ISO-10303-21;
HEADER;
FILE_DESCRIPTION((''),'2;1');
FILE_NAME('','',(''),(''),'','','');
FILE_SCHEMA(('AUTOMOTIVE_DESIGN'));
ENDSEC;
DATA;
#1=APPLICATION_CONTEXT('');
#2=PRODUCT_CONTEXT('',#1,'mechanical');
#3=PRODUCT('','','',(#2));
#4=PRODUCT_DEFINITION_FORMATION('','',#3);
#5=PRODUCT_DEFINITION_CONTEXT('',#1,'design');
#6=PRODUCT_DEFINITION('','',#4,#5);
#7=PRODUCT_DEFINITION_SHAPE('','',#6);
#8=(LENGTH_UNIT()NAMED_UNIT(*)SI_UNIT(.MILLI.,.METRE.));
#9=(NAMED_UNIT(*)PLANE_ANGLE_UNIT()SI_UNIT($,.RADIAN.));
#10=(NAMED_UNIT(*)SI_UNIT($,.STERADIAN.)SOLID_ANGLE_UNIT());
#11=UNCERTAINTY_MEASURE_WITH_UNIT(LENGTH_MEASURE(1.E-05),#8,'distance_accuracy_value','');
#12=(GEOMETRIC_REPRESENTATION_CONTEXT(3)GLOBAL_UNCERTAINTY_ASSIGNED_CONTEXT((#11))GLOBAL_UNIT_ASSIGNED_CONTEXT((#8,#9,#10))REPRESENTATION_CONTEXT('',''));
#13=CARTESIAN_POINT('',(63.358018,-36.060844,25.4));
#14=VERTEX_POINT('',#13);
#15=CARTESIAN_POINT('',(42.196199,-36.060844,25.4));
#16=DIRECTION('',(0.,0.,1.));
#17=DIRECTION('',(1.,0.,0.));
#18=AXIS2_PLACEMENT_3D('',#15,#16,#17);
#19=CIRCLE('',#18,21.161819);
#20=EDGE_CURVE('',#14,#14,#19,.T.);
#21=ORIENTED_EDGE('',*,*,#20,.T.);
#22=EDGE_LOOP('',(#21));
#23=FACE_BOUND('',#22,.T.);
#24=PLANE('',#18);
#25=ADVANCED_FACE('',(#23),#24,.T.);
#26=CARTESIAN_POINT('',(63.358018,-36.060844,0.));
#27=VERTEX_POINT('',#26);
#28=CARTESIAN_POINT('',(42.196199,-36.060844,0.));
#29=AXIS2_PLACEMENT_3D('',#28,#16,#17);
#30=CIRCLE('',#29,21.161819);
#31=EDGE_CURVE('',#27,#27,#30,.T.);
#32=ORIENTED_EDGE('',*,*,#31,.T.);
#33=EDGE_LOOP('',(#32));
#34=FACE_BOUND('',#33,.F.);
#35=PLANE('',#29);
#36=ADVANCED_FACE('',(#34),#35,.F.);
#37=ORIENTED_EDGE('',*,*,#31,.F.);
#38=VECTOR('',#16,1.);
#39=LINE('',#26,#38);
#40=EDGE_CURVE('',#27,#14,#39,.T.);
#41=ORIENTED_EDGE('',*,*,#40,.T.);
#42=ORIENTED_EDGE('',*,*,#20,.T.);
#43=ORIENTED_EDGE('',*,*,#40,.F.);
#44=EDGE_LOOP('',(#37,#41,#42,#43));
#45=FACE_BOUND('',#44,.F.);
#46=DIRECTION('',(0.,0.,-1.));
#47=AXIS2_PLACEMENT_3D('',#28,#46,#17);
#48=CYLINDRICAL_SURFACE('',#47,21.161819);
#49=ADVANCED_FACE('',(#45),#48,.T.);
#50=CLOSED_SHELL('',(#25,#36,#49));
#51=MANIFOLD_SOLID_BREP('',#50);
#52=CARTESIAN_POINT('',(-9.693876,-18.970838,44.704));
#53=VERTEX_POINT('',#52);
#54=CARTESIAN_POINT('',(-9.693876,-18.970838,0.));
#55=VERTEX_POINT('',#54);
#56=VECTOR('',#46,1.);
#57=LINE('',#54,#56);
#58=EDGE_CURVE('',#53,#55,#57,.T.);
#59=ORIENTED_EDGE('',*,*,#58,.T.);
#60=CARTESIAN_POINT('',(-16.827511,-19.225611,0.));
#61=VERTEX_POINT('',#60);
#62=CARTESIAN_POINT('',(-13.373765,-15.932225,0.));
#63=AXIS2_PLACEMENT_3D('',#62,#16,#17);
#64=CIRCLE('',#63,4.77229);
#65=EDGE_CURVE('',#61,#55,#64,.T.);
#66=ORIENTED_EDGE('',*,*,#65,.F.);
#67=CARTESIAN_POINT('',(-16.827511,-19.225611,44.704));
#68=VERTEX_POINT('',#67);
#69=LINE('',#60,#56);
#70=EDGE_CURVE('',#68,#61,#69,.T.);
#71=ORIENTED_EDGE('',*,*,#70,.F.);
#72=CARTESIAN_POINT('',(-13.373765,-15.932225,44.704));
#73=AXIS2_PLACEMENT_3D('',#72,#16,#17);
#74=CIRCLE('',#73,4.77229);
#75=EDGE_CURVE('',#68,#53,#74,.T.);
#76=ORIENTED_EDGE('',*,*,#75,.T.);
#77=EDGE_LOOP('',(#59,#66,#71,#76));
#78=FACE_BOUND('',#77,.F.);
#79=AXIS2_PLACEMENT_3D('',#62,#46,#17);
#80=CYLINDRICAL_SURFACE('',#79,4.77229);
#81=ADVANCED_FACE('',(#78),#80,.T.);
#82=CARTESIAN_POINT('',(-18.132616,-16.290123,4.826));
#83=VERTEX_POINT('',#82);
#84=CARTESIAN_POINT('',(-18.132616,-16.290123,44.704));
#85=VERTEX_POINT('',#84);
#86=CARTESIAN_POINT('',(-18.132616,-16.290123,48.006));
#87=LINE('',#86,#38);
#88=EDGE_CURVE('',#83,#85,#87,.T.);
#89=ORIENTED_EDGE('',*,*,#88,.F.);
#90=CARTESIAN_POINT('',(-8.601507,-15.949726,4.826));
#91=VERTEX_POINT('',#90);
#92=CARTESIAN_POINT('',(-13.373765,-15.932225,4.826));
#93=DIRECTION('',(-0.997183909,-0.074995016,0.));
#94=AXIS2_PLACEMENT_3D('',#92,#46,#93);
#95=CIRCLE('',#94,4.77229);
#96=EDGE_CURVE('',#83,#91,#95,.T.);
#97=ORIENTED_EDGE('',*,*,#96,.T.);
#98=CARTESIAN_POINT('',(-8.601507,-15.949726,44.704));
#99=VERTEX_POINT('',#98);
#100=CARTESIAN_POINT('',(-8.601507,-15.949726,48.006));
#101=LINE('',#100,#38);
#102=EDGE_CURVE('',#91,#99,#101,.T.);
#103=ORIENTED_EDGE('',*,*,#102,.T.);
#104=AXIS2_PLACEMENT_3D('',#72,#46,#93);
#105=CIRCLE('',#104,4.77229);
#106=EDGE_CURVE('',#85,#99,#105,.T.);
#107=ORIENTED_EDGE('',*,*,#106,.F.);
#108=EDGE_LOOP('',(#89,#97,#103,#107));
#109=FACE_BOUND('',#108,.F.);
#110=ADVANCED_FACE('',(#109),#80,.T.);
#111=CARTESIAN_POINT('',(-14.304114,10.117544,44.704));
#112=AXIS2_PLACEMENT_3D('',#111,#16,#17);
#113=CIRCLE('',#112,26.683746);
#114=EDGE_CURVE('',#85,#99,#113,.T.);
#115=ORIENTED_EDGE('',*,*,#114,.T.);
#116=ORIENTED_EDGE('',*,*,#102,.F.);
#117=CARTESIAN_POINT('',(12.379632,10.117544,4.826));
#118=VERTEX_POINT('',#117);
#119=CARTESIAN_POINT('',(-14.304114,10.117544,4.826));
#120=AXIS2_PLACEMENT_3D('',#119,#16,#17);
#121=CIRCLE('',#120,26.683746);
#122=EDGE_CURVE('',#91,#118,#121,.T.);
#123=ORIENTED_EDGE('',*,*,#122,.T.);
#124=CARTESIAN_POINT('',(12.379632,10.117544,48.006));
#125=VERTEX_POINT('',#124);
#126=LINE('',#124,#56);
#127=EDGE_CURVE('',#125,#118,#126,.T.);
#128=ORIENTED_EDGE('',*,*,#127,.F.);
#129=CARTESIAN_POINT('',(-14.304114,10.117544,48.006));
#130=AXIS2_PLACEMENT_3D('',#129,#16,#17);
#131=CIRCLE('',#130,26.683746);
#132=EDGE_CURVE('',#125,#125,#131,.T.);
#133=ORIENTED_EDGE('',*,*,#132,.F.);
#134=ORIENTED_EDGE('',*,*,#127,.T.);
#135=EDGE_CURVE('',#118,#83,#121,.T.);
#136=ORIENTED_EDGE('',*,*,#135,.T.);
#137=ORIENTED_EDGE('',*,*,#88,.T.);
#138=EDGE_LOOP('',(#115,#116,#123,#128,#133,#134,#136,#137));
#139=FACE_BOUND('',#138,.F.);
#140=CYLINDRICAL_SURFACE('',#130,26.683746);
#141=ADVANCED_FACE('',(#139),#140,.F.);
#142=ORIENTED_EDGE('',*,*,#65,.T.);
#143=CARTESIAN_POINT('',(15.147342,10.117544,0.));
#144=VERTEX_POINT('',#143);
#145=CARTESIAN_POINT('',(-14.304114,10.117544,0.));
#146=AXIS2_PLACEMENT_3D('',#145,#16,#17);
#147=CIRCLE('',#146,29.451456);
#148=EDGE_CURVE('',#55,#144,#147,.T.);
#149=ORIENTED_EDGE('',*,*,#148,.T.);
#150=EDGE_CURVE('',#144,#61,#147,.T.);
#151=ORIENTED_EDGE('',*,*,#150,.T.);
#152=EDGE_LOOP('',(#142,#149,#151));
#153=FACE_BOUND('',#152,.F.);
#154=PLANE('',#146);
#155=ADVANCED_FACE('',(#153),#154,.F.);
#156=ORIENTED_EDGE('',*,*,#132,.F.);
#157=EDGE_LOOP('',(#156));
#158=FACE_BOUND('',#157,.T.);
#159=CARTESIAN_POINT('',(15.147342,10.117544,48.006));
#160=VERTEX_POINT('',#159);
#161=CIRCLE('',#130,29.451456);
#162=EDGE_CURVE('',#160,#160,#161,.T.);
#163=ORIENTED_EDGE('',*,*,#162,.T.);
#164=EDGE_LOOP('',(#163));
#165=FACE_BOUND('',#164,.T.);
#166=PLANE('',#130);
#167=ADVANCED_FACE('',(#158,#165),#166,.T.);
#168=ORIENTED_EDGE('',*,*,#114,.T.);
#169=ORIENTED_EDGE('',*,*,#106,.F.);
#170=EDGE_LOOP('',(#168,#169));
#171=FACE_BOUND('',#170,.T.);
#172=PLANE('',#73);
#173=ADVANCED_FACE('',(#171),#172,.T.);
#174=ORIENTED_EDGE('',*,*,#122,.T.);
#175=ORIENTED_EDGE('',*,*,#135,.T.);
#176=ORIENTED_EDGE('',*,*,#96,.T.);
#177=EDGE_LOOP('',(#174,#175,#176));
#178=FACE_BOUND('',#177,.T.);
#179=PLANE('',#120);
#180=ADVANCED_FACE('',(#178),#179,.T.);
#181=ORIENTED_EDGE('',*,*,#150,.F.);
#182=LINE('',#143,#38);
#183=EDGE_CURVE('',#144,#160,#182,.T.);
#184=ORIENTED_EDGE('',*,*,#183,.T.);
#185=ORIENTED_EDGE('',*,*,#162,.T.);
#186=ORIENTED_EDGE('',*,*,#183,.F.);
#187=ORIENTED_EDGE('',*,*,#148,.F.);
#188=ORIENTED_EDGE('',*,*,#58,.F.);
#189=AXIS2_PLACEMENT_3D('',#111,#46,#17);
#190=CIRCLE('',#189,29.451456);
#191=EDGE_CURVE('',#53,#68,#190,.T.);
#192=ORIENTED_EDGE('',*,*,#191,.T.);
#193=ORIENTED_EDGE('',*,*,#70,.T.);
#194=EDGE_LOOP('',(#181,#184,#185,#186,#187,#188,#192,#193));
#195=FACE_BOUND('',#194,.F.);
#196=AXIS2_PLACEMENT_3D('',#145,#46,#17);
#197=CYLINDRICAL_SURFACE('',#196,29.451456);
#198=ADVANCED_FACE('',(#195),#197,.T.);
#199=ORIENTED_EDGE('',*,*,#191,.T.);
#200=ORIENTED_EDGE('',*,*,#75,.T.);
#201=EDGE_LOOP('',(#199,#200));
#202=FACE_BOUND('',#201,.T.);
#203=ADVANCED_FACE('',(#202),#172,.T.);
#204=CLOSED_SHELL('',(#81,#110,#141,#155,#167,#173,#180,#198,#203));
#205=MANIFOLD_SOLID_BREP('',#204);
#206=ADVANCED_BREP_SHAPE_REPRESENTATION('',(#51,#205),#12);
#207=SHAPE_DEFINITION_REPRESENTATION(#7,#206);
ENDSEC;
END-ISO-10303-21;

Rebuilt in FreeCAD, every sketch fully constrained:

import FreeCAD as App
import Part
import Sketcher
from FreeCAD import Vector
Q = App.Units.Quantity

doc = App.newDocument("Part")
body = doc.addObject("PartDesign::Body", "Body")

sketch1 = body.newObject("Sketcher::SketchObject", "Sketch")
sketch1.AttachmentSupport = (doc.getObject("XY_Plane"), [""])
sketch1.MapMode = "FlatFace"
sketch1.addGeometry(Part.Circle(Vector(-14, 10, 0), Vector(0, 0, 1), 29), False)
sketch1.addConstraint(Sketcher.Constraint("Diameter", 0, Q("58.902912 mm")))
sketch1.addConstraint(Sketcher.Constraint("DistanceX", 0, 3, -1, 1, Q("14.304114 mm")))
sketch1.addConstraint(Sketcher.Constraint("DistanceY", -1, 1, 0, 3, Q("10.117544 mm")))
pad1 = body.newObject("PartDesign::Pad", "Pad")
pad1.Profile = sketch1
pad1.Length = Q("1.89 in")

sketch2 = body.newObject("Sketcher::SketchObject", "Sketch001")
sketch2.AttachmentSupport = (doc.getObject("XY_Plane"), [""])
sketch2.MapMode = "FlatFace"
sketch2.AttachmentOffset = App.Placement(Vector(0, 0, 1.89 * 25.4), App.Rotation())
sketch2.addGeometry(Part.Circle(Vector(-14, 10, 0), Vector(0, 0, 1), 27), False)
sketch2.addConstraint(Sketcher.Constraint("Diameter", 0, Q("53.367492 mm")))
sketch2.addConstraint(Sketcher.Constraint("DistanceX", 0, 3, -1, 1, Q("14.304114 mm")))
sketch2.addConstraint(Sketcher.Constraint("DistanceY", -1, 1, 0, 3, Q("10.117544 mm")))
pocket1 = body.newObject("PartDesign::Pocket", "Pocket")
pocket1.Profile = sketch2
pocket1.Length = Q("1.7 in")

sketch3 = body.newObject("Sketcher::SketchObject", "Sketch002")
sketch3.AttachmentSupport = (doc.getObject("XY_Plane"), [""])
sketch3.MapMode = "FlatFace"
sketch3.addGeometry(Part.Circle(Vector(-13.4, -15.9, 0), Vector(0, 0, 1), 4.8), False)
sketch3.addConstraint(Sketcher.Constraint("Diameter", 0, Q("9.54458 mm")))
sketch3.addConstraint(Sketcher.Constraint("DistanceX", 0, 3, -1, 1, Q("13.373765 mm")))
sketch3.addConstraint(Sketcher.Constraint("DistanceY", 0, 3, -1, 1, Q("15.932225 mm")))
pad2 = body.newObject("PartDesign::Pad", "Pad001")
pad2.Profile = sketch3
pad2.Length = Q("1.76 in")

sketch4 = body.newObject("Sketcher::SketchObject", "Sketch003")
sketch4.AttachmentSupport = (doc.getObject("XY_Plane"), [""])
sketch4.MapMode = "FlatFace"
sketch4.addGeometry(Part.Circle(Vector(-14, 10, 0), Vector(0, 0, 1), 22), False)
sketch4.addConstraint(Sketcher.Constraint("Diameter", 0, Q("43.323698 mm")))
sketch4.addConstraint(Sketcher.Constraint("DistanceX", 0, 3, -1, 1, Q("14.304114 mm")))
sketch4.addConstraint(Sketcher.Constraint("DistanceY", -1, 1, 0, 3, Q("10.117544 mm")))
pad3 = body.newObject("PartDesign::Pad", "Pad002")
pad3.Profile = sketch4
pad3.Length = Q("1 in")
pad3.Reversed = True

sketch5 = body.newObject("Sketcher::SketchObject", "Sketch004")
sketch5.AttachmentSupport = (doc.getObject("XY_Plane"), [""])
sketch5.MapMode = "FlatFace"
sketch5.addGeometry(Part.Circle(Vector(-15, 8, 0), Vector(0, 0, 1), 56), False)
sketch5.addConstraint(Sketcher.Constraint("Diameter", 0, Q("112.244056 mm")))
sketch5.addConstraint(Sketcher.Constraint("DistanceX", 0, 3, -1, 1, Q("14.900141 mm")))
sketch5.addConstraint(Sketcher.Constraint("DistanceY", -1, 1, 0, 3, Q("8.263944 mm")))
pocket2 = body.newObject("PartDesign::Pocket", "Pocket001")
pocket2.Profile = sketch5
pocket2.Length = Q("1.75 in")
body2 = doc.addObject("PartDesign::Body", "Body001")

sketch6 = body2.newObject("Sketcher::SketchObject", "Sketch005")
sketch6.AttachmentSupport = (doc.getObject("XY_Plane001"), [""])
sketch6.MapMode = "FlatFace"
sketch6.addGeometry(Part.Circle(Vector(42, -36, 0), Vector(0, 0, 1), 21), False)
sketch6.addConstraint(Sketcher.Constraint("Diameter", 0, Q("42.323638 mm")))
sketch6.addConstraint(Sketcher.Constraint("DistanceX", -1, 1, 0, 3, Q("42.196199 mm")))
sketch6.addConstraint(Sketcher.Constraint("DistanceY", 0, 3, -1, 1, Q("36.060844 mm")))
pad4 = body2.newObject("PartDesign::Pad", "Pad003")
pad4.Profile = sketch6
pad4.Length = Q("1 in")

doc.recompute()
